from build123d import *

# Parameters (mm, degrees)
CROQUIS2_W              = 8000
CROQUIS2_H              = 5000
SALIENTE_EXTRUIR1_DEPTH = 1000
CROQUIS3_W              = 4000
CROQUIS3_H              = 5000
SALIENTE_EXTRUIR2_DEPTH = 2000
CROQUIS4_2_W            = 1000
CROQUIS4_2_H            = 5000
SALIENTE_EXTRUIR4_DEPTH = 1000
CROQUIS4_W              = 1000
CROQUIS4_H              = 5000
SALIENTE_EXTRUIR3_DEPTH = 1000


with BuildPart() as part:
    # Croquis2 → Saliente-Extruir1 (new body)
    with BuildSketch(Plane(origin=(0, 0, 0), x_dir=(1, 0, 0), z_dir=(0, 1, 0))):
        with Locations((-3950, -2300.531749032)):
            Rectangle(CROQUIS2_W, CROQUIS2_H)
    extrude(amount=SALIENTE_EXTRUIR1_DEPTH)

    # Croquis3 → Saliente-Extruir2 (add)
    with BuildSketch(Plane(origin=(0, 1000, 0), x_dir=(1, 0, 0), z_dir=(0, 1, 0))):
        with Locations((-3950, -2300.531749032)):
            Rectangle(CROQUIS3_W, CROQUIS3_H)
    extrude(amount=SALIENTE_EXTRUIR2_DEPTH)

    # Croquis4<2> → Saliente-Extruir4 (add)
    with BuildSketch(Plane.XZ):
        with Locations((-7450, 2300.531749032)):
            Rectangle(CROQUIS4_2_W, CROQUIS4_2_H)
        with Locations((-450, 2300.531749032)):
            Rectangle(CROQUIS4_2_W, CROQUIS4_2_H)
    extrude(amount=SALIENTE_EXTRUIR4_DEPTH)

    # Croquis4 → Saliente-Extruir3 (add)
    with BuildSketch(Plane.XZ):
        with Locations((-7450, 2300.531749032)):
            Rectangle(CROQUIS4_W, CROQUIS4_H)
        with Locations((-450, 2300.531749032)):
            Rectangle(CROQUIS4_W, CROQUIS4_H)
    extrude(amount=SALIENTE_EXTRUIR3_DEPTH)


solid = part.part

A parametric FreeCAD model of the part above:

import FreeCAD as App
import Part
import Sketcher

V = App.Vector

doc = App.newDocument("Part")
body = doc.addObject("PartDesign::Body", "Body")

# Sketch on XZ plane
sketch1 = body.newObject("Sketcher::SketchObject", "Sketch")
sketch1.AttachmentSupport = (doc.getObject("XZ_Plane"), [""])
sketch1.MapMode = "FlatFace"
sketch1.addGeometry([
    Part.LineSegment(V(-7950, -199, 0), V(-7950, 4801, 0)),
    Part.LineSegment(V(-7950, 4801, 0), V(50, 4801, 0)),
    Part.LineSegment(V(50, 4801, 0), V(50, -199, 0)),
    Part.LineSegment(V(50, -199, 0), V(-7950, -199, 0)),
], False)
sketch1.addConstraint([
    Sketcher.Constraint("Coincident", 0, 2, 1, 1),
    Sketcher.Constraint("Coincident", 1, 2, 2, 1),
    Sketcher.Constraint("Coincident", 2, 2, 3, 1),
    Sketcher.Constraint("Coincident", 3, 2, 0, 1),
    Sketcher.Constraint("Vertical", 0),
    Sketcher.Constraint("Horizontal", 1),
    Sketcher.Constraint("Vertical", 2),
    Sketcher.Constraint("Horizontal", 3),
    Sketcher.Constraint("DistanceX", 1, 1, 1, 2, 8000.0),
    Sketcher.Constraint("DistanceY", 0, 1, 0, 2, 5000.0),
    Sketcher.Constraint("DistanceX", 0, 2, -1, 1, 7950.0),
    Sketcher.Constraint("DistanceY", -1, 1, 0, 2, 4800.531749),
])
pad1 = body.newObject("PartDesign::Pad", "Pad")
pad1.Profile = sketch1
pad1.Length = 1000
pad1.Reversed = True

# Sketch on XZ plane
sketch2 = body.newObject("Sketcher::SketchObject", "Sketch001")
sketch2.AttachmentSupport = (doc.getObject("XZ_Plane"), [""])
sketch2.MapMode = "FlatFace"
sketch2.AttachmentOffset = App.Placement(V(0, 0, -1000), App.Rotation())
sketch2.addGeometry([
    Part.LineSegment(V(-5950, -199, 0), V(-5950, 4801, 0)),
    Part.LineSegment(V(-5950, 4801, 0), V(-1950, 4801, 0)),
    Part.LineSegment(V(-1950, 4801, 0), V(-1950, -199, 0)),
    Part.LineSegment(V(-1950, -199, 0), V(-5950, -199, 0)),
], False)
sketch2.addConstraint([
    Sketcher.Constraint("Coincident", 0, 2, 1, 1),
    Sketcher.Constraint("Coincident", 1, 2, 2, 1),
    Sketcher.Constraint("Coincident", 2, 2, 3, 1),
    Sketcher.Constraint("Coincident", 3, 2, 0, 1),
    Sketcher.Constraint("Vertical", 0),
    Sketcher.Constraint("Horizontal", 1),
    Sketcher.Constraint("Vertical", 2),
    Sketcher.Constraint("Horizontal", 3),
    Sketcher.Constraint("DistanceX", 1, 1, 1, 2, 4000.0),
    Sketcher.Constraint("DistanceY", 0, 1, 0, 2, 5000.0),
    Sketcher.Constraint("DistanceX", 0, 2, -1, 1, 5950.0),
    Sketcher.Constraint("DistanceY", -1, 1, 0, 2, 4800.531749),
])
pad2 = body.newObject("PartDesign::Pad", "Pad001")
pad2.Profile = sketch2
pad2.Length = 2000
pad2.Reversed = True

# Sketch on XZ plane
sketch3 = body.newObject("Sketcher::SketchObject", "Sketch002")
sketch3.AttachmentSupport = (doc.getObject("XZ_Plane"), [""])
sketch3.MapMode = "FlatFace"
sketch3.addGeometry([
    Part.LineSegment(V(-7950, 4801, 0), V(-7950, -199, 0)),  # 0
    Part.LineSegment(V(-7950, -199, 0), V(-6950, -199, 0)),  # 1
    Part.LineSegment(V(-6950, -199, 0), V(-6950, 4801, 0)),  # 2
    Part.LineSegment(V(-6950, 4801, 0), V(-7950, 4801, 0)),  # 3
    Part.LineSegment(V(-950, 4801, 0), V(-950, -199, 0)),  # 4
    Part.LineSegment(V(-950, -199, 0), V(50, -199, 0)),  # 5
    Part.LineSegment(V(50, -199, 0), V(50, 4801, 0)),  # 6
    Part.LineSegment(V(50, 4801, 0), V(-950, 4801, 0)),  # 7
], False)
sketch3.addConstraint([
    Sketcher.Constraint("Coincident", 0, 2, 1, 1),
    Sketcher.Constraint("Coincident", 1, 2, 2, 1),
    Sketcher.Constraint("Coincident", 2, 2, 3, 1),
    Sketcher.Constraint("Coincident", 3, 2, 0, 1),
    Sketcher.Constraint("Coincident", 4, 2, 5, 1),
    Sketcher.Constraint("Coincident", 5, 2, 6, 1),
    Sketcher.Constraint("Coincident", 6, 2, 7, 1),
    Sketcher.Constraint("Coincident", 7, 2, 4, 1),
    Sketcher.Constraint("Vertical", 0),
    Sketcher.Constraint("Horizontal", 1),
    Sketcher.Constraint("Vertical", 2),
    Sketcher.Constraint("Horizontal", 3),
    Sketcher.Constraint("Vertical", 4),
    Sketcher.Constraint("Horizontal", 5),
    Sketcher.Constraint("Vertical", 6),
    Sketcher.Constraint("Horizontal", 7),
    Sketcher.Constraint("Horizontal", 1, 2, 4, 2),
    Sketcher.Constraint("Horizontal", 3, 2, 6, 2),
    Sketcher.Constraint("Equal", 3, 5),
    Sketcher.Constraint("DistanceX", 1, 1, 1, 2, 1000.0),
    Sketcher.Constraint("DistanceY", 0, 2, 0, 1, 5000.0),
    Sketcher.Constraint("DistanceX", 0, 2, -1, 1, 7950.0),
    Sketcher.Constraint("DistanceX", 4, 2, -1, 1, 950.0),
    Sketcher.Constraint("DistanceY", 0, 2, -1, 1, 199.468251),
])
pad3 = body.newObject("PartDesign::Pad", "Pad002")
pad3.Profile = sketch3
pad3.Length = 1000

# Sketch on XZ plane
sketch4 = body.newObject("Sketcher::SketchObject", "Sketch003")
sketch4.AttachmentSupport = (doc.getObject("XZ_Plane"), [""])
sketch4.MapMode = "FlatFace"
sketch4.addGeometry([
    Part.LineSegment(V(-7950, 4801, 0), V(-7950, -199, 0)),  # 0
    Part.LineSegment(V(-7950, -199, 0), V(-6950, -199, 0)),  # 1
    Part.LineSegment(V(-6950, -199, 0), V(-6950, 4801, 0)),  # 2
    Part.LineSegment(V(-6950, 4801, 0), V(-7950, 4801, 0)),  # 3
    Part.LineSegment(V(-950, 4801, 0), V(-950, -199, 0)),  # 4
    Part.LineSegment(V(-950, -199, 0), V(50, -199, 0)),  # 5
    Part.LineSegment(V(50, -199, 0), V(50, 4801, 0)),  # 6
    Part.LineSegment(V(50, 4801, 0), V(-950, 4801, 0)),  # 7
], False)
sketch4.addConstraint([
    Sketcher.Constraint("Coincident", 0, 2, 1, 1),
    Sketcher.Constraint("Coincident", 1, 2, 2, 1),
    Sketcher.Constraint("Coincident", 2, 2, 3, 1),
    Sketcher.Constraint("Coincident", 3, 2, 0, 1),
    Sketcher.Constraint("Coincident", 4, 2, 5, 1),
    Sketcher.Constraint("Coincident", 5, 2, 6, 1),
    Sketcher.Constraint("Coincident", 6, 2, 7, 1),
    Sketcher.Constraint("Coincident", 7, 2, 4, 1),
    Sketcher.Constraint("Vertical", 0),
    Sketcher.Constraint("Horizontal", 1),
    Sketcher.Constraint("Vertical", 2),
    Sketcher.Constraint("Horizontal", 3),
    Sketcher.Constraint("Vertical", 4),
    Sketcher.Constraint("Horizontal", 5),
    Sketcher.Constraint("Vertical", 6),
    Sketcher.Constraint("Horizontal", 7),
    Sketcher.Constraint("Horizontal", 1, 2, 4, 2),
    Sketcher.Constraint("Horizontal", 3, 2, 6, 2),
    Sketcher.Constraint("Equal", 3, 5),
    Sketcher.Constraint("DistanceX", 1, 1, 1, 2, 1000.0),
    Sketcher.Constraint("DistanceY", 0, 2, 0, 1, 5000.0),
    Sketcher.Constraint("DistanceX", 0, 2, -1, 1, 7950.0),
    Sketcher.Constraint("DistanceX", 4, 2, -1, 1, 950.0),
    Sketcher.Constraint("DistanceY", 0, 2, -1, 1, 199.468251),
])
pad4 = body.newObject("PartDesign::Pad", "Pad003")
pad4.Profile = sketch4
pad4.Length = 1000

doc.recompute()
